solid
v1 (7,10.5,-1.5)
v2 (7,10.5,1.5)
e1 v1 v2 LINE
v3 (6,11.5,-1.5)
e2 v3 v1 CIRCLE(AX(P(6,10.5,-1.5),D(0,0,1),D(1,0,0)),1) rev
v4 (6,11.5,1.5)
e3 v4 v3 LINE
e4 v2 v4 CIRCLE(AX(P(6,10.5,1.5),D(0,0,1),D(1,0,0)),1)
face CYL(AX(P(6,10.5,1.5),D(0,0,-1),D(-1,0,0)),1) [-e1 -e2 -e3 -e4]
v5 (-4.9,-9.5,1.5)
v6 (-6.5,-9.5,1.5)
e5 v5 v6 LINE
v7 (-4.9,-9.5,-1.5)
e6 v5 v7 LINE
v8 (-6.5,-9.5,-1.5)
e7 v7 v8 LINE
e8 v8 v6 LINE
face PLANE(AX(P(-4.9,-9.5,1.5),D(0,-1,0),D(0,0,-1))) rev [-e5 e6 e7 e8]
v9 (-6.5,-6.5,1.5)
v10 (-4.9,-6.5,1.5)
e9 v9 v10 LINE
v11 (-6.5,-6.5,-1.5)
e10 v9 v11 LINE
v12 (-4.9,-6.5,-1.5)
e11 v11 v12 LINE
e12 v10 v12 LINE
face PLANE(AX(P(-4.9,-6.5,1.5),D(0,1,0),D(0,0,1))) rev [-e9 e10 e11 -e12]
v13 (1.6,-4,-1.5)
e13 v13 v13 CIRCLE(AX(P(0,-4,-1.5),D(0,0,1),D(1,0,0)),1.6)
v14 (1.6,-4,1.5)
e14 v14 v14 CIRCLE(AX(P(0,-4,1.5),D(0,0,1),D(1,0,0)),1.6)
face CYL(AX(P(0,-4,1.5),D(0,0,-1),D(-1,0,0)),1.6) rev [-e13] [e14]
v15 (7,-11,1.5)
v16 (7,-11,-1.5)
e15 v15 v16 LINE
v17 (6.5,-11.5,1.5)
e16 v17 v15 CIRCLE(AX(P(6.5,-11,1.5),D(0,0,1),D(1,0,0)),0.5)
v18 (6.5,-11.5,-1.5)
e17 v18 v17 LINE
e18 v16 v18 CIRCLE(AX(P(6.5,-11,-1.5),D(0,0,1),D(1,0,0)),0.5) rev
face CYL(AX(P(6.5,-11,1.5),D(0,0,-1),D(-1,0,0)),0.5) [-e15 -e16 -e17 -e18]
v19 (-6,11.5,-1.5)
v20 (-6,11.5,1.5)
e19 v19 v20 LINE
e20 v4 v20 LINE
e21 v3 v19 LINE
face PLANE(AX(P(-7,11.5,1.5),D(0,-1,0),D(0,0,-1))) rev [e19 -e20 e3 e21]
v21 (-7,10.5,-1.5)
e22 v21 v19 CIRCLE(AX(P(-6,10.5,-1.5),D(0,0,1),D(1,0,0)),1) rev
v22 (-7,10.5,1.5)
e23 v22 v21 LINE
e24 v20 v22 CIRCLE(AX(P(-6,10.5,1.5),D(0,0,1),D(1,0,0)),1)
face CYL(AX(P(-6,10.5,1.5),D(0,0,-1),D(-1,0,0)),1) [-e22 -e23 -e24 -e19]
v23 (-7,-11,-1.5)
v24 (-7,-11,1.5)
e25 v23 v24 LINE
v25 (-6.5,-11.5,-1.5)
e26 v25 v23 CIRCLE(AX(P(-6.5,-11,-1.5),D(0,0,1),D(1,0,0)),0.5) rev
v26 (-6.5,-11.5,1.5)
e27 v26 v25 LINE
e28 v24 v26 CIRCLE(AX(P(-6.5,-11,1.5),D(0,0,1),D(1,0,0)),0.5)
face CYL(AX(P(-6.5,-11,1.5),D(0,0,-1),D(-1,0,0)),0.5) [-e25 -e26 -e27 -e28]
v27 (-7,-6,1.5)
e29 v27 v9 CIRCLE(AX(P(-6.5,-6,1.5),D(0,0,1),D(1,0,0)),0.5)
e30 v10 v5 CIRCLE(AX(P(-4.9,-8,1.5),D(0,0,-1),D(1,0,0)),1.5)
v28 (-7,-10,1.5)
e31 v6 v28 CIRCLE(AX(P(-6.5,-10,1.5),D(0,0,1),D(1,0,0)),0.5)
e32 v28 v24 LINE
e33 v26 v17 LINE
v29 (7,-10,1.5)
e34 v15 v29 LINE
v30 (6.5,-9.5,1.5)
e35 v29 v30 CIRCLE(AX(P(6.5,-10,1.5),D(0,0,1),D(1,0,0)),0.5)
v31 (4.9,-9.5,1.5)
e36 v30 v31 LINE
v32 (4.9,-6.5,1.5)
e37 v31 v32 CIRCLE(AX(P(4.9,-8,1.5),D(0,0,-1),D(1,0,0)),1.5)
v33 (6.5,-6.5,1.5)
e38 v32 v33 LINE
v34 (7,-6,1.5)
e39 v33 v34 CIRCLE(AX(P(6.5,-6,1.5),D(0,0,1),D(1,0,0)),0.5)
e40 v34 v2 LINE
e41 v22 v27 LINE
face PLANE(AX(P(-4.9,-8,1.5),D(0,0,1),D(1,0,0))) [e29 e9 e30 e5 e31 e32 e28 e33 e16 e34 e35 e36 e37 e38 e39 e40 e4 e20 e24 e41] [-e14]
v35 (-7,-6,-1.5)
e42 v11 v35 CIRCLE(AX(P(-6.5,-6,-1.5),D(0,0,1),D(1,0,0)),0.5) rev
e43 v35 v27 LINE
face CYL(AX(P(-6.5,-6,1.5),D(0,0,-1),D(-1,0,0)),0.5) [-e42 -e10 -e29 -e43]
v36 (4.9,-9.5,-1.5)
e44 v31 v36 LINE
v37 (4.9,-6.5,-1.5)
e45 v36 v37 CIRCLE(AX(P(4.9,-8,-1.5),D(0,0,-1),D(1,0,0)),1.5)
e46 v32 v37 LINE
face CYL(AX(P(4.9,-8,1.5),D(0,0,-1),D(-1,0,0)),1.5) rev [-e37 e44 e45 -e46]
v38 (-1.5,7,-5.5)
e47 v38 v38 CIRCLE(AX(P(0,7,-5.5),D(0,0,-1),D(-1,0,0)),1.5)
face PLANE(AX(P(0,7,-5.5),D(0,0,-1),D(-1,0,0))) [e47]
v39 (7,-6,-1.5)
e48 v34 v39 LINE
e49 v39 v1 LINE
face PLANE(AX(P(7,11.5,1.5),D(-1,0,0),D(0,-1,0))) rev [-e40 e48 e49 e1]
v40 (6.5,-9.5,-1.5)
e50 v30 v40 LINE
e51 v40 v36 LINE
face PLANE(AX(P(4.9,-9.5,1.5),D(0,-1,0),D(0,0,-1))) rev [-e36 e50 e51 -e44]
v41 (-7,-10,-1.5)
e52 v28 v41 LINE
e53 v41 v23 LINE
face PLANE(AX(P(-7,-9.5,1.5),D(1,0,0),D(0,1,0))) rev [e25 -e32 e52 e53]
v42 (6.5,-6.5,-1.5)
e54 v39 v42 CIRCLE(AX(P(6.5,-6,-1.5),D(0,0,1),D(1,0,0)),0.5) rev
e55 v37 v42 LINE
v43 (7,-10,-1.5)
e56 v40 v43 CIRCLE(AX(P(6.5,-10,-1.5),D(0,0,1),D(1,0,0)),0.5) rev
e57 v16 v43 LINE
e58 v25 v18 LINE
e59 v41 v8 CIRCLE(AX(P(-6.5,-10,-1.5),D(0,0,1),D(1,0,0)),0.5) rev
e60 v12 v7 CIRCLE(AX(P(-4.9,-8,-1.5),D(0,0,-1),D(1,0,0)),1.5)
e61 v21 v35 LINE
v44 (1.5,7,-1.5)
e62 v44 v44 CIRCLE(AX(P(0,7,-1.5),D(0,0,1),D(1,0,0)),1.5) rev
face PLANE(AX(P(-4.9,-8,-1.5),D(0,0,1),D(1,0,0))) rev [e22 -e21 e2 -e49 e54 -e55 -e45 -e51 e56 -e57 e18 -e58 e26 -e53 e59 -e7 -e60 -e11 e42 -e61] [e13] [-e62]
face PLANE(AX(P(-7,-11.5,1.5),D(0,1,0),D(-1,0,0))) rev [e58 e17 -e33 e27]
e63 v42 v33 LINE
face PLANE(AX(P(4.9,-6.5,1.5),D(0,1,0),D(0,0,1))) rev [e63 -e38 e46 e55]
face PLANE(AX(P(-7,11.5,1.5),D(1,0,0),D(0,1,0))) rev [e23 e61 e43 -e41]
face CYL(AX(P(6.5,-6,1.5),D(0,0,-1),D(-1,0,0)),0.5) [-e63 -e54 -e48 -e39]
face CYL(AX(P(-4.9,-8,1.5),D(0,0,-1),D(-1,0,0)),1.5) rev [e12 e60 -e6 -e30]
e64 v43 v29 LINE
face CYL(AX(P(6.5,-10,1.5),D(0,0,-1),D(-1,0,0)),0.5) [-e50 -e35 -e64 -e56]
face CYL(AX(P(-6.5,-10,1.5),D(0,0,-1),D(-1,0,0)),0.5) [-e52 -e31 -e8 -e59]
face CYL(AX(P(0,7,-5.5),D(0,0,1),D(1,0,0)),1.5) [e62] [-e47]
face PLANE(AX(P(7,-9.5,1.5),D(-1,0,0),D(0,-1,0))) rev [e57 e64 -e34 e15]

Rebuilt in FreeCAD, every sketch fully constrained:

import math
import FreeCAD as App
import Part
import Sketcher

V = App.Vector


def edges_at(feature, points):
    """Names of the edges that pass closest to the given points."""
    edges = feature.Shape.Edges
    near = lambda p: min(range(len(edges)), key=lambda i: edges[i].distToShape(Part.Vertex(*p))[0])
    return sorted({f"Edge{near(p) + 1}" for p in points})

doc = App.newDocument("Part")
body = doc.addObject("PartDesign::Body", "Body")

# Sketch on XY plane
sketch1 = body.newObject("Sketcher::SketchObject", "Sketch")
sketch1.AttachmentSupport = (doc.getObject("XY_Plane"), [""])
sketch1.MapMode = "FlatFace"
sketch1.addGeometry(Part.LineSegment(V(7, -6.5, 0), V(7, 11.5, 0)), False)
sketch1.addGeometry(Part.LineSegment(V(7, 11.5, 0), V(-7, 11.5, 0)), False)
sketch1.addGeometry(Part.LineSegment(V(-7, 11.5, 0), V(-7, -6.5, 0)), False)
sketch1.addGeometry(Part.LineSegment(V(-7, -6.5, 0), V(-4.9, -6.5, 0)), False)
sketch1.addGeometry(Part.ArcOfCircle(Part.Circle(V(-4.9, -8, 0), V(0, 0, 1), 1.5), math.radians(-90), math.radians(90)), False)
sketch1.addGeometry(Part.LineSegment(V(-4.9, -9.5, 0), V(-7, -9.5, 0)), False)
sketch1.addGeometry(Part.LineSegment(V(-7, -9.5, 0), V(-7, -11.5, 0)), False)
sketch1.addGeometry(Part.LineSegment(V(-7, -11.5, 0), V(7, -11.5, 0)), False)
sketch1.addGeometry(Part.LineSegment(V(7, -11.5, 0), V(7, -9.5, 0)), False)
sketch1.addGeometry(Part.LineSegment(V(7, -9.5, 0), V(4.9, -9.5, 0)), False)
sketch1.addGeometry(Part.ArcOfCircle(Part.Circle(V(4.9, -8, 0), V(0, 0, 1), 1.5), math.radians(90), math.radians(270)), False)
sketch1.addGeometry(Part.LineSegment(V(4.9, -6.5, 0), V(7, -6.5, 0)), False)
sketch1.addGeometry(Part.Circle(V(0, -4, 0), V(0, 0, 1), 1.6), False)
sketch1.addConstraint(Sketcher.Constraint("Coincident", 0, 2, 1, 1))
sketch1.addConstraint(Sketcher.Constraint("Coincident", 1, 2, 2, 1))
sketch1.addConstraint(Sketcher.Constraint("Coincident", 2, 2, 3, 1))
sketch1.addConstraint(Sketcher.Constraint("Tangent", 3, 2, 4, 2))
sketch1.addConstraint(Sketcher.Constraint("Tangent", 4, 1, 5, 1))
sketch1.addConstraint(Sketcher.Constraint("Coincident", 5, 2, 6, 1))
sketch1.addConstraint(Sketcher.Constraint("Coincident", 6, 2, 7, 1))
sketch1.addConstraint(Sketcher.Constraint("Coincident", 7, 2, 8, 1))
sketch1.addConstraint(Sketcher.Constraint("Coincident", 8, 2, 9, 1))
sketch1.addConstraint(Sketcher.Constraint("Tangent", 9, 2, 10, 2))
sketch1.addConstraint(Sketcher.Constraint("Tangent", 10, 1, 11, 1))
sketch1.addConstraint(Sketcher.Constraint("Coincident", 11, 2, 0, 1))
sketch1.addConstraint(Sketcher.Constraint("Vertical", 0))
sketch1.addConstraint(Sketcher.Constraint("Horizontal", 1))
sketch1.addConstraint(Sketcher.Constraint("Vertical", 2))
sketch1.addConstraint(Sketcher.Constraint("Horizontal", 3))
sketch1.addConstraint(Sketcher.Constraint("Horizontal", 5))
sketch1.addConstraint(Sketcher.Constraint("Vertical", 6))
sketch1.addConstraint(Sketcher.Constraint("Horizontal", 7))
sketch1.addConstraint(Sketcher.Constraint("Vertical", 8))
sketch1.addConstraint(Sketcher.Constraint("Horizontal", 9))
sketch1.addConstraint(Sketcher.Constraint("Horizontal", 11))
sketch1.addConstraint(Sketcher.Constraint("Equal", 4, 10))
sketch1.addConstraint(Sketcher.Constraint("Symmetric", 0, 2, 6, 2, -1, 1))
sketch1.addConstraint(Sketcher.Constraint("Symmetric", 4, 3, 10, 3, -2))
sketch1.addConstraint(Sketcher.Constraint("PointOnObject", 12, 3, -2))
sketch1.addConstraint(Sketcher.Constraint("Vertical", 2, 2, 5, 2))
sketch1.addConstraint(Sketcher.Constraint("Vertical", 0, 2, 7, 2))
sketch1.addConstraint(Sketcher.Constraint("Diameter", 12, 3.2))
sketch1.addConstraint(Sketcher.Constraint("Radius", 4, 1.5))
sketch1.addConstraint(Sketcher.Constraint("DistanceX", 1, 2, 1, 1, 14.0))
sketch1.addConstraint(Sketcher.Constraint("DistanceY", 0, 1, 0, 2, 18.0))
sketch1.addConstraint(Sketcher.Constraint("DistanceY", 6, 2, 6, 1, 2.0))
sketch1.addConstraint(Sketcher.Constraint("DistanceX", 3, 1, 3, 2, 2.1))
sketch1.addConstraint(Sketcher.Constraint("DistanceY", 12, 3, -1, 1, 4.0))
pad1 = body.newObject("PartDesign::Pad", "Pad")
pad1.Profile = sketch1
pad1.Length = 3
pad1.Midplane = True
doc.recompute()

fillet = body.newObject("PartDesign::Fillet", "Fillet")
fillet.Base = (pad1, edges_at(pad1, [(-7, 11.5, 0), (7, 11.5, 0)]))
fillet.Radius = 1
doc.recompute()

fillet2 = body.newObject("PartDesign::Fillet", "Fillet001")
fillet2.Base = (fillet, edges_at(fillet, [
    (7, -11.5, 0),
    (-7, -11.5, 0),
    (-7, -9.5, 0),
    (-7, -6.5, 0),
    (7, -6.5, 0),
    (7, -9.5, 0),
]))
fillet2.Radius = 0.5

# Sketch on XY plane
sketch2 = body.newObject("Sketcher::SketchObject", "Sketch001")
sketch2.AttachmentSupport = (doc.getObject("XY_Plane"), [""])
sketch2.MapMode = "FlatFace"
sketch2.AttachmentOffset = App.Placement(V(0, 0, -1.5), App.Rotation())
sketch2.addGeometry(Part.Circle(V(0, 7, 0), V(0, 0, 1), 1.5), False)
sketch2.addConstraint(Sketcher.Constraint("PointOnObject", 0, 3, -2))
sketch2.addConstraint(Sketcher.Constraint("Diameter", 0, 3.0))
sketch2.addConstraint(Sketcher.Constraint("DistanceY", -1, 1, 0, 3, 7.0))
pad2 = body.newObject("PartDesign::Pad", "Pad001")
pad2.Profile = sketch2
pad2.Length = 4
pad2.Reversed = True

doc.recompute()
